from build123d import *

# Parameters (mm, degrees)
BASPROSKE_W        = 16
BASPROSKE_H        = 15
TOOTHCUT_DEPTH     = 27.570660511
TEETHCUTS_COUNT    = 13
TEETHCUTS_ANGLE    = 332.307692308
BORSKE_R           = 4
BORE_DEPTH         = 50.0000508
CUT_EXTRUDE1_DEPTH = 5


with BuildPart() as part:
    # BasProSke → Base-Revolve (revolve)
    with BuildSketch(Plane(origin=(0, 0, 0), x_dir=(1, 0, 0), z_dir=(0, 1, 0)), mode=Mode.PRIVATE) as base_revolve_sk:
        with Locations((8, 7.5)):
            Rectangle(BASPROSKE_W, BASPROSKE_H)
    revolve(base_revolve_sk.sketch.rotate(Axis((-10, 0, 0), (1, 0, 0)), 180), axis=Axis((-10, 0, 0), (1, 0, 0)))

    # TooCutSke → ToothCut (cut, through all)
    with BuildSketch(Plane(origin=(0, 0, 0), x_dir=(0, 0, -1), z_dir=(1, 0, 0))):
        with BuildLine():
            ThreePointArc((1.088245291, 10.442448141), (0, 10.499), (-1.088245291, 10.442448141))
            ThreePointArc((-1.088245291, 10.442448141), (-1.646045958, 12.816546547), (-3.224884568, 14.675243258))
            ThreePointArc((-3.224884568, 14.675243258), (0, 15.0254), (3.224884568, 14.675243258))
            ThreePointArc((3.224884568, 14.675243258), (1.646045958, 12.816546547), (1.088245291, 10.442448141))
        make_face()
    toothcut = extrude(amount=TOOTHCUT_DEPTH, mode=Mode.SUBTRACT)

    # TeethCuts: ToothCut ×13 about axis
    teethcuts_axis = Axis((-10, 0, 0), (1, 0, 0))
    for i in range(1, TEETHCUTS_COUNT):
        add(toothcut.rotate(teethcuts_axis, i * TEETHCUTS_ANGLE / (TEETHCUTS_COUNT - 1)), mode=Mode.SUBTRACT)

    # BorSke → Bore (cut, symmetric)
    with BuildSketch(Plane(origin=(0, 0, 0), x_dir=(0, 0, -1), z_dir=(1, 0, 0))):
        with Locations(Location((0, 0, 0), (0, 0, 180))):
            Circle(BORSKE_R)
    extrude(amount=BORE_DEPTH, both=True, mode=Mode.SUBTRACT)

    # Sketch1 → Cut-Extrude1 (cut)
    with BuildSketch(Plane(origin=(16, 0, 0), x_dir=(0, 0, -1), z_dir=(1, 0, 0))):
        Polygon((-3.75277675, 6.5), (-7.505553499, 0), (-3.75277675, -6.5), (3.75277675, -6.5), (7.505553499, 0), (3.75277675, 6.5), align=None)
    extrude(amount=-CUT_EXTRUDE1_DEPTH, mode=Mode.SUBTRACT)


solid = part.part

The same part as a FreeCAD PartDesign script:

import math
import FreeCAD as App
import Part
import Sketcher
from FreeCAD import Vector
Q = App.Units.Quantity


def add_polygon(sketch, points):
    """Adds a closed chain of lines whose ends are joined by coincident constraints."""
    first, n = sketch.GeometryCount, len(points)
    for a, b in zip(points, points[1:] + points[:1]):
        sketch.addGeometry(Part.LineSegment(App.Vector(*a, 0), App.Vector(*b, 0)), False)
    for i in range(n):
        sketch.addConstraint(Sketcher.Constraint("Coincident", first + i, 2, first + (i + 1) % n, 1))

doc = App.newDocument("Part")
body = doc.addObject("PartDesign::Body", "Body")

# Sketch on XZ plane
sketch1 = body.newObject("Sketcher::SketchObject", "Sketch")
sketch1.AttachmentSupport = (doc.getObject("XZ_Plane"), [""])
sketch1.MapMode = "FlatFace"
add_polygon(sketch1, [(0, -15), (0, 0), (16, 0), (16, -15)])  # lines 0-3
sketch1.addConstraint([
    Sketcher.Constraint("Vertical", 0),
    Sketcher.Constraint("Horizontal", 1),
    Sketcher.Constraint("Vertical", 2),
    Sketcher.Constraint("Horizontal", 3),
    Sketcher.Constraint("Coincident", 0, 2, -1, 1),
    Sketcher.Constraint("DistanceX", 1, 1, 1, 2, Q("16 mm")),
    Sketcher.Constraint("DistanceY", 0, 1, 0, 2, Q("15 mm")),
])
revolution = body.newObject("PartDesign::Revolution", "Revolution")
revolution.Profile = sketch1
revolution.ReferenceAxis = (sketch1, ["H_Axis"])
revolution.Angle = 360

# Sketch on YZ plane
sketch2 = body.newObject("Sketcher::SketchObject", "Sketch001")
sketch2.AttachmentSupport = (doc.getObject("YZ_Plane"), [""])
sketch2.MapMode = "FlatFace"
sketch2.addGeometry([
    Part.ArcOfCircle(Part.Circle(Vector(0, 0, 0), Vector(0, 0, 1), 10.5), math.radians(-5.95), math.radians(5.95)),
    Part.ArcOfCircle(Part.Circle(Vector(10.5, -6.3, 0), Vector(0, 0, 1), 5.2), math.radians(36), math.radians(90)),
    Part.ArcOfCircle(Part.Circle(Vector(0, 0, 0), Vector(0, 0, 1), 15), math.radians(-12), math.radians(12)),
    Part.ArcOfCircle(Part.Circle(Vector(10.5, 6.3, 0), Vector(0, 0, 1), 5.2), math.radians(-90), math.radians(-36)),
], False)
sketch2.addConstraint([
    Sketcher.Constraint("Coincident", 0, 1, 1, 2),
    Sketcher.Constraint("Coincident", 1, 1, 2, 1),
    Sketcher.Constraint("Coincident", 2, 2, 3, 2),
    Sketcher.Constraint("Coincident", 3, 1, 0, 2),
    Sketcher.Constraint("Coincident", 0, 3, -1, 1),
    Sketcher.Constraint("Coincident", 2, 3, -1, 1),
    Sketcher.Constraint("Equal", 1, 3),
    Sketcher.Constraint("Symmetric", 1, 3, 3, 3, -1),
    Sketcher.Constraint("Radius", 1, Q("5.2 mm")),
    Sketcher.Constraint("Radius", 0, Q("10.499 mm")),
    Sketcher.Constraint("Radius", 2, Q("15.0254 mm")),
    Sketcher.Constraint("DistanceY", 0, 1, 3, 3, Q("7.376399 mm")),
    Sketcher.Constraint("DistanceY", 1, 1, 0, 1, Q("2.136639 mm")),
])
pocket1 = body.newObject("PartDesign::Pocket", "Pocket")
pocket1.Profile = sketch2
pocket1.Type = "ThroughAll"
pocket1.Reversed = True
doc.recompute()

polarpattern = body.newObject("PartDesign::PolarPattern", "PolarPattern")
polarpattern.Originals = [pocket1]
polarpattern.Axis = (doc.getObject("X_Axis"), [""])
polarpattern.Angle = 360
polarpattern.Occurrences = 13
body.Tip = polarpattern

# Sketch on YZ plane
sketch3 = body.newObject("Sketcher::SketchObject", "Sketch002")
sketch3.AttachmentSupport = (doc.getObject("YZ_Plane"), [""])
sketch3.MapMode = "FlatFace"
sketch3.addGeometry(Part.Circle(Vector(0, 0, 0), Vector(0, 0, 1), 4), False)
sketch3.addConstraint([
    Sketcher.Constraint("Coincident", 0, 3, -1, 1),
    Sketcher.Constraint("Diameter", 0, Q("8 mm")),
])
pocket2 = body.newObject("PartDesign::Pocket", "Pocket001")
pocket2.Profile = sketch3
pocket2.Length = 100.000102
pocket2.Midplane = True

# Sketch on YZ plane
sketch4 = body.newObject("Sketcher::SketchObject", "Sketch003")
sketch4.AttachmentSupport = (doc.getObject("YZ_Plane"), [""])
sketch4.MapMode = "FlatFace"
sketch4.AttachmentOffset = App.Placement(Vector(0, 0, 16), App.Rotation())
add_polygon(sketch4, [(6, 4), (0, 8), (-6, 4), (-6, -4), (0, -8), (6, -4)])  # lines 0-5
sketch4.addConstraint([
    Sketcher.Constraint("Vertical", 2),
    Sketcher.Constraint("Vertical", 5),
    Sketcher.Constraint("Symmetric", 0, 2, 3, 2, -1, 1),
    Sketcher.Constraint("Symmetric", 1, 2, 4, 2, -1, 1),
    Sketcher.Constraint("PointOnObject", 0, 2, -2),
    Sketcher.Constraint("Parallel", 0, 3),
    Sketcher.Constraint("Horizontal", 2, 2, 4, 2),
    Sketcher.Constraint("Angle", 0, Q("150 deg")),
    Sketcher.Constraint("DistanceX", 2, 2, 4, 2, Q("13 mm")),
    Sketcher.Constraint("DistanceY", 2, 2, 2, 1, Q("7.505554 mm")),
])
pocket3 = body.newObject("PartDesign::Pocket", "Pocket002")
pocket3.Profile = sketch4
pocket3.Length = 5

doc.recompute()
